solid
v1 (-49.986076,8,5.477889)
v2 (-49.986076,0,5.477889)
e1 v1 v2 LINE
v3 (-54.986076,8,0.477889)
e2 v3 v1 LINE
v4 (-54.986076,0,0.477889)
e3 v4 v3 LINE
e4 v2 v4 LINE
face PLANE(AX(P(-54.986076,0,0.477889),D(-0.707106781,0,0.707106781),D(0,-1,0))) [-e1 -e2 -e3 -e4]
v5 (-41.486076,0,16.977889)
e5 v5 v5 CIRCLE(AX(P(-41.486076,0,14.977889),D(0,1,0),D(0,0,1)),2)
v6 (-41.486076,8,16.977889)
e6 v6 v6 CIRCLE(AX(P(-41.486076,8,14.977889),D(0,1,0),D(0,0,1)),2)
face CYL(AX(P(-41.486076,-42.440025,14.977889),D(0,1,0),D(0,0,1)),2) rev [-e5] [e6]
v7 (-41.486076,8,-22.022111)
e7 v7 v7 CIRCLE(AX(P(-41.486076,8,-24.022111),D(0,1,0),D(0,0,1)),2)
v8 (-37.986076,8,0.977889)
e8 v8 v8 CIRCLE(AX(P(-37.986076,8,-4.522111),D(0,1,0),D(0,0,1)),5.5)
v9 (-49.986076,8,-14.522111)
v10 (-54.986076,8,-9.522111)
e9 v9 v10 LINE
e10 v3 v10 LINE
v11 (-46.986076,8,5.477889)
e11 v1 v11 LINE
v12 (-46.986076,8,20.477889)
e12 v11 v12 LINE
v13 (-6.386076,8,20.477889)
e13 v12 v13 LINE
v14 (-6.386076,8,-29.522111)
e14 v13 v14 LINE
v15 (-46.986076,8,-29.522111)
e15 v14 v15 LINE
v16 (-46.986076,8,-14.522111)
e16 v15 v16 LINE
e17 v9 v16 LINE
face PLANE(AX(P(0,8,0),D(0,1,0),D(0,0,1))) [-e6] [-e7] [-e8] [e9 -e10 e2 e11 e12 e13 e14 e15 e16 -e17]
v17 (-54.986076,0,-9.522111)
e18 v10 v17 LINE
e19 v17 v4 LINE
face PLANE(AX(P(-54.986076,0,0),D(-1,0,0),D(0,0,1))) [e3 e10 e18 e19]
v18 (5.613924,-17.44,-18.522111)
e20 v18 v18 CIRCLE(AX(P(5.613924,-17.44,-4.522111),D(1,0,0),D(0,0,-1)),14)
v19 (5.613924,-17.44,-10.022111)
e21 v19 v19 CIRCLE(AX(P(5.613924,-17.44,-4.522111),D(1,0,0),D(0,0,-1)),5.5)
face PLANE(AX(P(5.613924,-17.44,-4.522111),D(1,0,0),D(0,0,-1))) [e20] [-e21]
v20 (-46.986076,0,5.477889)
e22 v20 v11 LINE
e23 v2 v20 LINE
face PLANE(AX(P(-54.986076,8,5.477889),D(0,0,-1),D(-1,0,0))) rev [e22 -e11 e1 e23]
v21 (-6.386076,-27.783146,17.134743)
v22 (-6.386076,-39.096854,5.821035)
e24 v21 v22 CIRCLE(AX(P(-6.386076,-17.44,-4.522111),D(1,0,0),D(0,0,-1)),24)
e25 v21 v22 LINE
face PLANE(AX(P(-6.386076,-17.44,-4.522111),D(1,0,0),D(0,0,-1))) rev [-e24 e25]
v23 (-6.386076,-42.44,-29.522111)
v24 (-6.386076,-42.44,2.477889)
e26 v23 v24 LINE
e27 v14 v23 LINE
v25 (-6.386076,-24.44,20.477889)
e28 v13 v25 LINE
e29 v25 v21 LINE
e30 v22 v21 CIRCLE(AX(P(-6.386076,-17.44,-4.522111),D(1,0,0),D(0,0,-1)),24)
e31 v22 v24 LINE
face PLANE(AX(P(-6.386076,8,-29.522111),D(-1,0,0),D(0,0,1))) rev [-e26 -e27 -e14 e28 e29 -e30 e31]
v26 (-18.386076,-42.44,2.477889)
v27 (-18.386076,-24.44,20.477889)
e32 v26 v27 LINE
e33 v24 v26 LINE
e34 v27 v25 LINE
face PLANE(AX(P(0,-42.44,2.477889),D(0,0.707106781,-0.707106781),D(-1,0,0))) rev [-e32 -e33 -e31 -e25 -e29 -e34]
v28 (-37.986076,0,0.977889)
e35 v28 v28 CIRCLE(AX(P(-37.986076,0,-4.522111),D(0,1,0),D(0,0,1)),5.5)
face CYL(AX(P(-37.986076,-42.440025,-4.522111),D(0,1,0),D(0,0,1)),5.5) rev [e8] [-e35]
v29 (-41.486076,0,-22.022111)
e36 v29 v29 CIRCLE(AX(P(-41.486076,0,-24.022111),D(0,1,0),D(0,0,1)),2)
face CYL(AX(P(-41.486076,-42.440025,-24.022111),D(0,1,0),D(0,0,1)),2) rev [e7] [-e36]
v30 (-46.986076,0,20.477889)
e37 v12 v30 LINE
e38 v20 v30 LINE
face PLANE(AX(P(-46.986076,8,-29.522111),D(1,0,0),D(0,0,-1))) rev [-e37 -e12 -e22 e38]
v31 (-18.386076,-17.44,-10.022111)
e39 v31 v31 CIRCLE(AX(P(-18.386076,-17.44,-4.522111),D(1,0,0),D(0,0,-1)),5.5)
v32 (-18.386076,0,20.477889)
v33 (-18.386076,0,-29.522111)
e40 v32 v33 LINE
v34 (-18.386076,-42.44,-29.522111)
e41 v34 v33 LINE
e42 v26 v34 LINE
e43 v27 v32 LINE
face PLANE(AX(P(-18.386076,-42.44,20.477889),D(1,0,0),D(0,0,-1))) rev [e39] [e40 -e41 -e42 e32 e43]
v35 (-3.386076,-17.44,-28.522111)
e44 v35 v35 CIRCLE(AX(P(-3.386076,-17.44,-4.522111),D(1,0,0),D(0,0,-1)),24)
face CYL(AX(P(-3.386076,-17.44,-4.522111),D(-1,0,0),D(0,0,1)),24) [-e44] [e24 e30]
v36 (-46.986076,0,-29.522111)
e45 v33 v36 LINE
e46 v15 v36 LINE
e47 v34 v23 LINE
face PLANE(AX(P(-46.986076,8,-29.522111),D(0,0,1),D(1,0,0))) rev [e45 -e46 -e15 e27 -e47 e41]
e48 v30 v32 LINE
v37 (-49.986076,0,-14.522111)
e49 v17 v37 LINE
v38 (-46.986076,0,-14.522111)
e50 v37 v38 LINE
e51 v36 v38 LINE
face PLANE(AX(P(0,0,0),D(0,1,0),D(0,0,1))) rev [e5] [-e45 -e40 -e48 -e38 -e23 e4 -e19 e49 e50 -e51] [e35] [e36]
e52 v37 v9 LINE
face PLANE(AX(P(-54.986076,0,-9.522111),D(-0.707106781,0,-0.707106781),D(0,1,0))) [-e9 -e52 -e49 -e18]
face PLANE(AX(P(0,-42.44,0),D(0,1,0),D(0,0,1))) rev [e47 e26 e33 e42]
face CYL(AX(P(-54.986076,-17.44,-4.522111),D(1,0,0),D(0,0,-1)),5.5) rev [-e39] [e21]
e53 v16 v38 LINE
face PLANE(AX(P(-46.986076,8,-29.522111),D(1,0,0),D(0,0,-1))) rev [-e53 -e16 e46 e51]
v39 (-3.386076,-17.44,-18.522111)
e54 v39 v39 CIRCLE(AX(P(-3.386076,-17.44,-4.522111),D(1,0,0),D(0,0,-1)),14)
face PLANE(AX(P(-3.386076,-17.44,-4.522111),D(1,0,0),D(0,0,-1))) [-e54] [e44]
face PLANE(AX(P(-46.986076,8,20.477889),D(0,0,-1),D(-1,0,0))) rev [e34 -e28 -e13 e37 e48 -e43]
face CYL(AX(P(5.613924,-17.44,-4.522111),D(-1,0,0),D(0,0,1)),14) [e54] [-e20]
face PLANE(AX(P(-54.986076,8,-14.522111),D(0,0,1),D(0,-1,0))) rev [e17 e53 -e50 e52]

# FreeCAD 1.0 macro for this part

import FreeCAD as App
import Part
import Sketcher

V = App.Vector
Q = App.Units.Quantity


def edges_at(feature, points):
    """Names of the edges that pass closest to the given points."""
    edges = feature.Shape.Edges
    near = lambda p: min(range(len(edges)), key=lambda i: edges[i].distToShape(Part.Vertex(*p))[0])
    return sorted({f"Edge{near(p) + 1}" for p in points})

doc = App.newDocument("Part")
params = doc.addObject("Spreadsheet::Sheet", "Params")
for row, (alias, value) in enumerate([
    ("sketch1_height", "50 mm"),
    ("sketch1_width", "40.6 mm"),
    ("pad1_length", "8 mm"),
    ("sketch2_width", "12 mm"),
    ("sketch2_height", "50 mm"),
    ("pad2_length", "42.44 mm"),
    ("chamfer_size", "18 mm"),
    ("sketch3_diameter", "48 mm"),
    ("pad3_length", "3 mm"),
    ("sketch4_diameter", "28 mm"),
    ("pad4_length", "9 mm"),
    ("sketch5_width", "8 mm"),
    ("sketch5_height", "20 mm"),
    ("pad5_length", "8 mm"),
    ("chamfer2_size", "5 mm"),
    ("chamfer3_size", "5 mm"),
    ("sketch6_diameter", "11 mm"),
    ("sketch7_diameter", "11 mm"),
    ("sketch8_diameter", "4 mm"),
], start=1):
    params.set(f"A{row}", alias)
    params.set(f"B{row}", "=" + value)
    params.setAlias(f"B{row}", alias)

body = doc.addObject("PartDesign::Body", "Body")

sketch1 = body.newObject("Sketcher::SketchObject", "Sketch")
sketch1.AttachmentSupport = (doc.getObject("XZ_Plane"), [""])
sketch1.MapMode = "FlatFace"
sketch1.addGeometry([
    Part.LineSegment(V(-47, -30, 0), V(-47, 20, 0)),
    Part.LineSegment(V(-47, 20, 0), V(-6, 20, 0)),
    Part.LineSegment(V(-6, 20, 0), V(-6, -30, 0)),
    Part.LineSegment(V(-6, -30, 0), V(-47, -30, 0)),
], False)
sketch1.addConstraint([
    Sketcher.Constraint("Coincident", 0, 2, 1, 1),
    Sketcher.Constraint("Coincident", 1, 2, 2, 1),
    Sketcher.Constraint("Coincident", 2, 2, 3, 1),
    Sketcher.Constraint("Coincident", 3, 2, 0, 1),
    Sketcher.Constraint("Vertical", 0),
    Sketcher.Constraint("Horizontal", 1),
    Sketcher.Constraint("Vertical", 2),
    Sketcher.Constraint("Horizontal", 3),
    Sketcher.Constraint("DistanceY", 0, 1, 0, 2, Q("50 mm")),
    Sketcher.Constraint("DistanceX", 1, 1, 1, 2, Q("40.6 mm")),
    Sketcher.Constraint("DistanceY", -1, 1, 0, 2, Q("20.477889 mm")),
    Sketcher.Constraint("DistanceX", 0, 2, -1, 1, Q("46.986076 mm")),
])
sketch1.setExpression("Constraints[8]", "Params.sketch1_height")
sketch1.setExpression("Constraints[9]", "Params.sketch1_width")
pad1 = body.newObject("PartDesign::Pad", "Pad")
pad1.Profile = sketch1
pad1.setExpression("Length", "Params.pad1_length")
pad1.Reversed = True

sketch2 = body.newObject("Sketcher::SketchObject", "Sketch001")
sketch2.AttachmentSupport = (doc.getObject("XZ_Plane"), [""])
sketch2.MapMode = "FlatFace"
sketch2.addGeometry([
    Part.LineSegment(V(-6, -30, 0), V(-6, 20, 0)),
    Part.LineSegment(V(-6, 20, 0), V(-18, 20, 0)),
    Part.LineSegment(V(-18, 20, 0), V(-18, -30, 0)),
    Part.LineSegment(V(-18, -30, 0), V(-6, -30, 0)),
], False)
sketch2.addConstraint([
    Sketcher.Constraint("Coincident", 0, 2, 1, 1),
    Sketcher.Constraint("Coincident", 1, 2, 2, 1),
    Sketcher.Constraint("Coincident", 2, 2, 3, 1),
    Sketcher.Constraint("Coincident", 3, 2, 0, 1),
    Sketcher.Constraint("Vertical", 0),
    Sketcher.Constraint("Horizontal", 1),
    Sketcher.Constraint("Vertical", 2),
    Sketcher.Constraint("Horizontal", 3),
    Sketcher.Constraint("DistanceX", 1, 2, 1, 1, Q("12 mm")),
    Sketcher.Constraint("DistanceY", 0, 1, 0, 2, Q("50 mm")),
    Sketcher.Constraint("DistanceY", -1, 1, 0, 2, Q("20.477889 mm")),
    Sketcher.Constraint("DistanceX", 0, 2, -1, 1, Q("6.386076 mm")),
])
sketch2.setExpression("Constraints[8]", "Params.sketch2_width")
sketch2.setExpression("Constraints[9]", "Params.sketch2_height")
pad2 = body.newObject("PartDesign::Pad", "Pad001")
pad2.Profile = sketch2
pad2.setExpression("Length", "Params.pad2_length")
doc.recompute()

chamfer = body.newObject("PartDesign::Chamfer", "Chamfer")
chamfer.Base = (pad2, edges_at(pad2, [(-12.386, -42.44, 20.478)]))
chamfer.setExpression("Size", "Params.chamfer_size")

sketch3 = body.newObject("Sketcher::SketchObject", "Sketch002")
sketch3.AttachmentSupport = (doc.getObject("YZ_Plane"), [""])
sketch3.MapMode = "FlatFace"
sketch3.AttachmentOffset = App.Placement(V(0, 0, -6.386076), App.Rotation())
sketch3.addGeometry(Part.Circle(V(-17, -5, 0), V(0, 0, 1), 24), False)
sketch3.addConstraint([
    Sketcher.Constraint("Diameter", 0, Q("48 mm")),
    Sketcher.Constraint("DistanceX", 0, 3, -1, 1, Q("17.44 mm")),
    Sketcher.Constraint("DistanceY", 0, 3, -1, 1, Q("4.522111 mm")),
])
sketch3.setExpression("Constraints[0]", "Params.sketch3_diameter")
pad3 = body.newObject("PartDesign::Pad", "Pad002")
pad3.Profile = sketch3
pad3.setExpression("Length", "Params.pad3_length")

sketch4 = body.newObject("Sketcher::SketchObject", "Sketch003")
sketch4.AttachmentSupport = (doc.getObject("YZ_Plane"), [""])
sketch4.MapMode = "FlatFace"
sketch4.AttachmentOffset = App.Placement(V(0, 0, -3.386076), App.Rotation())
sketch4.addGeometry(Part.Circle(V(-17, -5, 0), V(0, 0, 1), 14), False)
sketch4.addConstraint([
    Sketcher.Constraint("Diameter", 0, Q("28 mm")),
    Sketcher.Constraint("DistanceX", 0, 3, -1, 1, Q("17.44 mm")),
    Sketcher.Constraint("DistanceY", 0, 3, -1, 1, Q("4.522111 mm")),
])
sketch4.setExpression("Constraints[0]", "Params.sketch4_diameter")
pad4 = body.newObject("PartDesign::Pad", "Pad003")
pad4.Profile = sketch4
pad4.setExpression("Length", "Params.pad4_length")

sketch5 = body.newObject("Sketcher::SketchObject", "Sketch004")
sketch5.AttachmentSupport = (doc.getObject("YZ_Plane"), [""])
sketch5.MapMode = "FlatFace"
sketch5.AttachmentOffset = App.Placement(V(0, 0, -46.986076), App.Rotation())
sketch5.addGeometry([
    Part.LineSegment(V(8, -15, 0), V(0, -15, 0)),
    Part.LineSegment(V(0, -15, 0), V(0, 5, 0)),
    Part.LineSegment(V(0, 5, 0), V(8, 5, 0)),
    Part.LineSegment(V(8, 5, 0), V(8, -15, 0)),
], False)
sketch5.addConstraint([
    Sketcher.Constraint("Coincident", 0, 2, 1, 1),
    Sketcher.Constraint("Coincident", 1, 2, 2, 1),
    Sketcher.Constraint("Coincident", 2, 2, 3, 1),
    Sketcher.Constraint("Coincident", 3, 2, 0, 1),
    Sketcher.Constraint("Horizontal", 0),
    Sketcher.Constraint("Vertical", 1),
    Sketcher.Constraint("Horizontal", 2),
    Sketcher.Constraint("Vertical", 3),
    Sketcher.Constraint("PointOnObject", 0, 2, -2),
    Sketcher.Constraint("DistanceX", 0, 2, 0, 1, Q("8 mm")),
    Sketcher.Constraint("DistanceY", 1, 1, 1, 2, Q("20 mm")),
    Sketcher.Constraint("DistanceY", 0, 2, -1, 1, Q("14.522111 mm")),
])
sketch5.setExpression("Constraints[9]", "Params.sketch5_width")
sketch5.setExpression("Constraints[10]", "Params.sketch5_height")
pad5 = body.newObject("PartDesign::Pad", "Pad004")
pad5.Profile = sketch5
pad5.setExpression("Length", "Params.pad5_length")
pad5.Reversed = True
doc.recompute()

chamfer2 = body.newObject("PartDesign::Chamfer", "Chamfer001")
chamfer2.Base = (pad5, edges_at(pad5, [(-54.986, 4, 5.478)]))
chamfer2.setExpression("Size", "Params.chamfer2_size")
doc.recompute()

chamfer3 = body.newObject("PartDesign::Chamfer", "Chamfer002")
chamfer3.Base = (chamfer2, edges_at(chamfer2, [(-54.986, 4, -14.522)]))
chamfer3.setExpression("Size", "Params.chamfer3_size")

sketch6 = body.newObject("Sketcher::SketchObject", "Sketch005")
sketch6.AttachmentSupport = (doc.getObject("XZ_Plane"), [""])
sketch6.MapMode = "FlatFace"
sketch6.AttachmentOffset = App.Placement(V(0, 0, -8), App.Rotation())
sketch6.addGeometry(Part.Circle(V(-38, -5, 0), V(0, 0, 1), 6), False)
sketch6.addConstraint([
    Sketcher.Constraint("Diameter", 0, Q("11 mm")),
    Sketcher.Constraint("DistanceY", 0, 3, -1, 1, Q("4.522111 mm")),
    Sketcher.Constraint("DistanceX", 0, 3, -1, 1, Q("37.986076 mm")),
])
sketch6.setExpression("Constraints[0]", "Params.sketch6_diameter")
pocket1 = body.newObject("PartDesign::Pocket", "Pocket")
pocket1.Profile = sketch6
pocket1.Type = "ThroughAll"
pocket1.Reversed = True

sketch7 = body.newObject("Sketcher::SketchObject", "Sketch006")
sketch7.AttachmentSupport = (doc.getObject("YZ_Plane"), [""])
sketch7.MapMode = "FlatFace"
sketch7.AttachmentOffset = App.Placement(V(0, 0, 5.613924), App.Rotation())
sketch7.addGeometry(Part.Circle(V(-17, -5, 0), V(0, 0, 1), 6), False)
sketch7.addConstraint([
    Sketcher.Constraint("Diameter", 0, Q("11 mm")),
    Sketcher.Constraint("DistanceX", 0, 3, -1, 1, Q("17.44 mm")),
    Sketcher.Constraint("DistanceY", 0, 3, -1, 1, Q("4.522111 mm")),
])
sketch7.setExpression("Constraints[0]", "Params.sketch7_diameter")
pocket2 = body.newObject("PartDesign::Pocket", "Pocket001")
pocket2.Profile = sketch7
pocket2.Type = "ThroughAll"

sketch8 = body.newObject("Sketcher::SketchObject", "Sketch007")
sketch8.AttachmentSupport = (doc.getObject("XZ_Plane"), [""])
sketch8.MapMode = "FlatFace"
sketch8.AttachmentOffset = App.Placement(V(0, 0, -8), App.Rotation())
sketch8.addGeometry([
    Part.Circle(V(-41.5, 15, 0), V(0, 0, 1), 2),
    Part.Circle(V(-41.5, -24, 0), V(0, 0, 1), 2),
], False)
sketch8.addConstraint([
    Sketcher.Constraint("Equal", 0, 1),
    Sketcher.Constraint("Vertical", 0, 3, 1, 3),
    Sketcher.Constraint("Diameter", 0, Q("4 mm")),
    Sketcher.Constraint("DistanceY", 1, 3, 0, 3, Q("39 mm")),
    Sketcher.Constraint("DistanceY", -1, 1, 0, 3, Q("14.977889 mm")),
    Sketcher.Constraint("DistanceX", 0, 3, -1, 1, Q("41.486076 mm")),
])
sketch8.setExpression("Constraints[2]", "Params.sketch8_diameter")
pocket3 = body.newObject("PartDesign::Pocket", "Pocket002")
pocket3.Profile = sketch8
pocket3.Type = "ThroughAll"
pocket3.Reversed = True

doc.recompute()
